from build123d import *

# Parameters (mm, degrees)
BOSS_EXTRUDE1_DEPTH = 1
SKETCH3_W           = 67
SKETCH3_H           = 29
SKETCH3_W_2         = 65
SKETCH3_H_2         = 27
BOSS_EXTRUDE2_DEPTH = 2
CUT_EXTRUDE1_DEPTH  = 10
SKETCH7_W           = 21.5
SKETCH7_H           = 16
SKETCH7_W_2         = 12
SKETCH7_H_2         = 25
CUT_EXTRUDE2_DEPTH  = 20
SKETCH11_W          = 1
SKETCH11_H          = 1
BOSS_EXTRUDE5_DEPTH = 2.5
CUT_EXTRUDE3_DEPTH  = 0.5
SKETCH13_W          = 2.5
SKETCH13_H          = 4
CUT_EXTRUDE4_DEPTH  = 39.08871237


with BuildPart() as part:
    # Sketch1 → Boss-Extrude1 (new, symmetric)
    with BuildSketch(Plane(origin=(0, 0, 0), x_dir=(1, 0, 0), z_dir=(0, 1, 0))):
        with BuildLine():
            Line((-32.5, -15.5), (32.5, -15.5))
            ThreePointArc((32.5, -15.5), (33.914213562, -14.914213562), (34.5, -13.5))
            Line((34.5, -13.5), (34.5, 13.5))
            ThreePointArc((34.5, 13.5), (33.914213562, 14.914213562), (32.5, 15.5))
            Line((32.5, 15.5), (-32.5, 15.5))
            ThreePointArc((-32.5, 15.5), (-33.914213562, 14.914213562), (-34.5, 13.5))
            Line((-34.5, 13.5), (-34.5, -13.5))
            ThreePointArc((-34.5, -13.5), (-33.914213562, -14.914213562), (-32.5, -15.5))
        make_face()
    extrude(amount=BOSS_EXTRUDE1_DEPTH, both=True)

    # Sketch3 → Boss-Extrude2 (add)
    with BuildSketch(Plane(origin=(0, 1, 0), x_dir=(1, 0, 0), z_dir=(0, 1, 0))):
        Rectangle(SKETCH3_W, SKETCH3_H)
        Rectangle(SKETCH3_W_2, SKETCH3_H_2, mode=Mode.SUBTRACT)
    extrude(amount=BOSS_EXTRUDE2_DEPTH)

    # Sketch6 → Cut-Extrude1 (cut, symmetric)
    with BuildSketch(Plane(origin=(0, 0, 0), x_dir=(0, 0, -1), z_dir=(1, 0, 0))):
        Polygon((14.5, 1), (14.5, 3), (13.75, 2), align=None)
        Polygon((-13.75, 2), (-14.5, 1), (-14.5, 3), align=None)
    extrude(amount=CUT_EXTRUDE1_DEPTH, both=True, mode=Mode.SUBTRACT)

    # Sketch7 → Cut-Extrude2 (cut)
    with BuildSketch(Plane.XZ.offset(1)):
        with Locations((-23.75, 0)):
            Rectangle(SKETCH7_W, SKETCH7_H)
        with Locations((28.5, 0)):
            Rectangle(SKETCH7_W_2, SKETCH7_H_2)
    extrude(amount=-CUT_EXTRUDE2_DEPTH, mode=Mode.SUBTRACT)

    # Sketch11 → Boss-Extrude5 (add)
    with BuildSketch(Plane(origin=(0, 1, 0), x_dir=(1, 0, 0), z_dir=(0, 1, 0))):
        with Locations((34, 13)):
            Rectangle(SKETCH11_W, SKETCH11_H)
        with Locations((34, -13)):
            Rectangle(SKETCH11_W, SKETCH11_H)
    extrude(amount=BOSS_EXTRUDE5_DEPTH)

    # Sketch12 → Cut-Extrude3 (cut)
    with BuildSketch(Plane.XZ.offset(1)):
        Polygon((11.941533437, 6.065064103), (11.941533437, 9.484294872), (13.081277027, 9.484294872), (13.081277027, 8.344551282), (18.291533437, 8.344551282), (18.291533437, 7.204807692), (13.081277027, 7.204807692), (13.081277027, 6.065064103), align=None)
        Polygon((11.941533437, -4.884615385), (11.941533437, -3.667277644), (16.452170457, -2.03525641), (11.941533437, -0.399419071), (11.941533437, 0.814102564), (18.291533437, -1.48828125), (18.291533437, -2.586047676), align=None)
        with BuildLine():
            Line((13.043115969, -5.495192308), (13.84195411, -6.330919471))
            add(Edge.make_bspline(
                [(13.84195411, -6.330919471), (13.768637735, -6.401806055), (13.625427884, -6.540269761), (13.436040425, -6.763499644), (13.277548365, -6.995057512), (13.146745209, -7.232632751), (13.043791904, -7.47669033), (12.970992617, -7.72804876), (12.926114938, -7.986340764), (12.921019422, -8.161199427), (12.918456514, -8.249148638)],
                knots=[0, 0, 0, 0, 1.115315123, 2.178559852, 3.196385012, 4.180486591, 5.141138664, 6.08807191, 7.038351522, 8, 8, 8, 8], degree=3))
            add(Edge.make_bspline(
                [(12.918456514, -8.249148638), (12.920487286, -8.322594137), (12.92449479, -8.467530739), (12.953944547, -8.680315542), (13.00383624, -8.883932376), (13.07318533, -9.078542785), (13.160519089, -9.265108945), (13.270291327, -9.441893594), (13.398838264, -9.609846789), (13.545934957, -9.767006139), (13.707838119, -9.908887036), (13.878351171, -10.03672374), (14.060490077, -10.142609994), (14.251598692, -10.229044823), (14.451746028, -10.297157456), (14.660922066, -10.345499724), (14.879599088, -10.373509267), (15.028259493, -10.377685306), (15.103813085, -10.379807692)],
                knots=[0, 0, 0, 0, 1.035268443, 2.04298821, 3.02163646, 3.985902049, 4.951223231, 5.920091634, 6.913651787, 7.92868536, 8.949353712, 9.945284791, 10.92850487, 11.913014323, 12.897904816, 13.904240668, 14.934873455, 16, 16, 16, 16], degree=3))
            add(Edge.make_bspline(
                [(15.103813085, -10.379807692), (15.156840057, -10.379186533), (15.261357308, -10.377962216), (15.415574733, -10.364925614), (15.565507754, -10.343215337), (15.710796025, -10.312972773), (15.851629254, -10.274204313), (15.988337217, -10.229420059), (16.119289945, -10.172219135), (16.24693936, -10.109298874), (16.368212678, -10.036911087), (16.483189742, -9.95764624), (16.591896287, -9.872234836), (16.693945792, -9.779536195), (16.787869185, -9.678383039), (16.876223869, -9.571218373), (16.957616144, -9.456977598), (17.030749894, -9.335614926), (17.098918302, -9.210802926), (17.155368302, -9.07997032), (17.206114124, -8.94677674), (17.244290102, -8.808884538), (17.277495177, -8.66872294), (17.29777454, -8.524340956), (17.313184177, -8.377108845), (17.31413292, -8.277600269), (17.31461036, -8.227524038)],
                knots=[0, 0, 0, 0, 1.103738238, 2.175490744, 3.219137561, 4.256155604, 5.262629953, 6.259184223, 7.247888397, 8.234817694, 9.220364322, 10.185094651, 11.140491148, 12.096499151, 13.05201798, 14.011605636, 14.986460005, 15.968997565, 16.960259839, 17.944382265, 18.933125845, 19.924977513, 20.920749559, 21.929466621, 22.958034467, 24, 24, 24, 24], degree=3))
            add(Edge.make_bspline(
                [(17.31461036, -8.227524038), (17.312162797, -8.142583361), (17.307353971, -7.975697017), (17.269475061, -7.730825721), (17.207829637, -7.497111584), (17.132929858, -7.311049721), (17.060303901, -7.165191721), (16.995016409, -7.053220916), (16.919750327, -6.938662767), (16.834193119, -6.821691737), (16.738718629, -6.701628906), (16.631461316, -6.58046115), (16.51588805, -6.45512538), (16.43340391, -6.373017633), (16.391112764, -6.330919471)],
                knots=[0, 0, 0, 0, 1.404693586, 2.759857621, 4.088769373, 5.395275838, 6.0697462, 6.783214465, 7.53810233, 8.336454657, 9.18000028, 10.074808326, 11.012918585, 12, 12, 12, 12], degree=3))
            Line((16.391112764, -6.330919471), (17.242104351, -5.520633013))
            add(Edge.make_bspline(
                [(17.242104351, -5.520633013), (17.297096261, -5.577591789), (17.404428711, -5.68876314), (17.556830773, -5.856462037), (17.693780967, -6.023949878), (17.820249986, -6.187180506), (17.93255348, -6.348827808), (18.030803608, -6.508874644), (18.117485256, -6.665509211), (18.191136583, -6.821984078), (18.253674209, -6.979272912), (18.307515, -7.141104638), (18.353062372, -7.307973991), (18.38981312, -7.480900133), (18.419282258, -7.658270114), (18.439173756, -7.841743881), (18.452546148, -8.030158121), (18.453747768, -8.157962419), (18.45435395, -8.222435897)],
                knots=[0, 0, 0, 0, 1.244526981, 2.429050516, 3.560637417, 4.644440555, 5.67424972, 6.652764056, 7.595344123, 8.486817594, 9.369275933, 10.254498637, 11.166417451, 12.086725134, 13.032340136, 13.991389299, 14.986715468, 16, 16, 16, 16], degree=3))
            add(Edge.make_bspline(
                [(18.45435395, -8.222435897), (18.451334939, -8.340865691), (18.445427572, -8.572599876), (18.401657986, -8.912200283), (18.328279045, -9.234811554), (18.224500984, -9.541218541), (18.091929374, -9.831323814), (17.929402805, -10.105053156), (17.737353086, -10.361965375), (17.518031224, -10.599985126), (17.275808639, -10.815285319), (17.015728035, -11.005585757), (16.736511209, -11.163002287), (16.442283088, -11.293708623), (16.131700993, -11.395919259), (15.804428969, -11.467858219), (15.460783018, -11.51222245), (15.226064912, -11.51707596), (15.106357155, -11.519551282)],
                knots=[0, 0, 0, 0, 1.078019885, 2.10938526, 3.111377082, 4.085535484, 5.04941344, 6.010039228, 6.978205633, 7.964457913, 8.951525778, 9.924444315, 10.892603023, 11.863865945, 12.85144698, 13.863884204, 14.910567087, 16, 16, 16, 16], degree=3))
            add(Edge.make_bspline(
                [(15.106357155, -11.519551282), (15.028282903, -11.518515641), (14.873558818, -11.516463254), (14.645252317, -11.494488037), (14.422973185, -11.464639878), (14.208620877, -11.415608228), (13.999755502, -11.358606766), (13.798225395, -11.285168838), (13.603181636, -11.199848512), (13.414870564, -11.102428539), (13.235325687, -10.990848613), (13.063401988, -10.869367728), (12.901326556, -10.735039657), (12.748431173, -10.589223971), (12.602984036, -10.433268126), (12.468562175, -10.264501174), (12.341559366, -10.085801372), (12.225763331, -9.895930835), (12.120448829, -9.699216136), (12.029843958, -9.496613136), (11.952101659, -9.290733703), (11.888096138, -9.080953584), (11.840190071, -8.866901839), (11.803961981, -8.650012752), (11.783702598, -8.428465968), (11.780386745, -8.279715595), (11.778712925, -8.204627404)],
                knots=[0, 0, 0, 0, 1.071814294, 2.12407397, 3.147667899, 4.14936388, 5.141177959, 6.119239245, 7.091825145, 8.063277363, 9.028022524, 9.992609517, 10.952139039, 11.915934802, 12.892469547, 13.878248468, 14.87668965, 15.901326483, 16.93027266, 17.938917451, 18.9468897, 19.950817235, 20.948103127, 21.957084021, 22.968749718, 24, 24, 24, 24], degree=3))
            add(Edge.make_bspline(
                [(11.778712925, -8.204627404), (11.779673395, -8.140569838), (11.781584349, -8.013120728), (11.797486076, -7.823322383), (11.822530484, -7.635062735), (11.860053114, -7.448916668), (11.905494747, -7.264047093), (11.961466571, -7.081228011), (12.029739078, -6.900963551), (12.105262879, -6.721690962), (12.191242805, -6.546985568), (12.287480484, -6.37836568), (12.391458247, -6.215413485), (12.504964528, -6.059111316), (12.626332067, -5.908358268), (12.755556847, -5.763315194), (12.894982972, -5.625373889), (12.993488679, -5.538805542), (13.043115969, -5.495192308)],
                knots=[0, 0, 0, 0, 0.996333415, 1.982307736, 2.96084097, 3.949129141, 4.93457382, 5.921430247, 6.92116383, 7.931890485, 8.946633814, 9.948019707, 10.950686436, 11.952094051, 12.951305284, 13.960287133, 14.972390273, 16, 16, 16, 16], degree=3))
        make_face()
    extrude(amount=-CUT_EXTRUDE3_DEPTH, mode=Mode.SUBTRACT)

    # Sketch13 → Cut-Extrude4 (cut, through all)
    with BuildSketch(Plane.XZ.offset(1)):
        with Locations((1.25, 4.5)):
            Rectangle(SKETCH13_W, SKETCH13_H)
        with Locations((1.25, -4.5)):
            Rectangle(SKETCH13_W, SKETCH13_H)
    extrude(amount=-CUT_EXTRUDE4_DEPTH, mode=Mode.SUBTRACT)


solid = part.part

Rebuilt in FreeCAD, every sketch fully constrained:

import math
import FreeCAD as App
import Part
import Sketcher

V = App.Vector


def add_polygon(sketch, points):
    """Adds a closed chain of lines whose ends are joined by coincident constraints."""
    first, n = sketch.GeometryCount, len(points)
    for a, b in zip(points, points[1:] + points[:1]):
        sketch.addGeometry(Part.LineSegment(App.Vector(*a, 0), App.Vector(*b, 0)), False)
    for i in range(n):
        sketch.addConstraint(Sketcher.Constraint("Coincident", first + i, 2, first + (i + 1) % n, 1))

doc = App.newDocument("Part")
body = doc.addObject("PartDesign::Body", "Body")

sketch1 = body.newObject("Sketcher::SketchObject", "Sketch")
sketch1.AttachmentSupport = (doc.getObject("XZ_Plane"), [""])
sketch1.MapMode = "FlatFace"
sketch1.addGeometry([
    Part.LineSegment(V(-32.5, 15.5, 0), V(32.5, 15.5, 0)),
    Part.ArcOfCircle(Part.Circle(V(32.5, 13.5, 0), V(0, 0, 1), 2), math.radians(0), math.radians(90)),
    Part.LineSegment(V(34.5, 13.5, 0), V(34.5, -13.5, 0)),
    Part.ArcOfCircle(Part.Circle(V(32.5, -13.5, 0), V(0, 0, 1), 2), math.radians(-90), math.radians(0)),
    Part.LineSegment(V(32.5, -15.5, 0), V(-32.5, -15.5, 0)),
    Part.ArcOfCircle(Part.Circle(V(-32.5, -13.5, 0), V(0, 0, 1), 2), math.radians(-180), math.radians(-90)),
    Part.LineSegment(V(-34.5, -13.5, 0), V(-34.5, 13.5, 0)),
    Part.ArcOfCircle(Part.Circle(V(-32.5, 13.5, 0), V(0, 0, 1), 2), math.radians(90), math.radians(180)),
], False)
sketch1.addConstraint([
    Sketcher.Constraint("Tangent", 0, 2, 1, 2),
    Sketcher.Constraint("Tangent", 1, 1, 2, 1),
    Sketcher.Constraint("Tangent", 2, 2, 3, 2),
    Sketcher.Constraint("Tangent", 3, 1, 4, 1),
    Sketcher.Constraint("Tangent", 4, 2, 5, 2),
    Sketcher.Constraint("Tangent", 5, 1, 6, 1),
    Sketcher.Constraint("Tangent", 6, 2, 7, 2),
    Sketcher.Constraint("Tangent", 7, 1, 0, 1),
    Sketcher.Constraint("Horizontal", 0),
    Sketcher.Constraint("Vertical", 2),
    Sketcher.Constraint("Horizontal", 4),
    Sketcher.Constraint("Vertical", 6),
    Sketcher.Constraint("Equal", 1, 3),
    Sketcher.Constraint("Equal", 3, 5),
    Sketcher.Constraint("Equal", 5, 7),
    Sketcher.Constraint("Symmetric", 1, 3, 5, 3, -1, 1),
    Sketcher.Constraint("Radius", 1, 2.0),
    Sketcher.Constraint("DistanceX", 0, 1, 0, 2, 65.0),
    Sketcher.Constraint("DistanceY", 2, 2, 2, 1, 27.0),
])
pad1 = body.newObject("PartDesign::Pad", "Pad")
pad1.Profile = sketch1
pad1.Length = 2
pad1.Midplane = True

sketch2 = body.newObject("Sketcher::SketchObject", "Sketch001")
sketch2.AttachmentSupport = (doc.getObject("XZ_Plane"), [""])
sketch2.MapMode = "FlatFace"
sketch2.AttachmentOffset = App.Placement(V(0, 0, -1), App.Rotation())
add_polygon(sketch2, [(-34, -14), (-34, 14), (34, 14), (34, -14)])
add_polygon(sketch2, [(32, 14), (-32, 14), (-32, -14), (32, -14)])
sketch2.addConstraint([
    Sketcher.Constraint("Vertical", 0),
    Sketcher.Constraint("Horizontal", 1),
    Sketcher.Constraint("Vertical", 2),
    Sketcher.Constraint("Horizontal", 3),
    Sketcher.Constraint("Horizontal", 4),
    Sketcher.Constraint("Vertical", 5),
    Sketcher.Constraint("Horizontal", 6),
    Sketcher.Constraint("Vertical", 7),
    Sketcher.Constraint("Symmetric", 0, 2, 2, 2, -1, 1),
    Sketcher.Constraint("Symmetric", 4, 2, 6, 2, -1, 1),
    Sketcher.Constraint("DistanceX", 1, 1, 1, 2, 67.0),
    Sketcher.Constraint("DistanceX", 4, 2, 4, 1, 65.0),
    Sketcher.Constraint("DistanceY", 0, 1, 0, 2, 29.0),
    Sketcher.Constraint("DistanceY", 5, 2, 5, 1, 27.0),
])
pad2 = body.newObject("PartDesign::Pad", "Pad001")
pad2.Profile = sketch2
pad2.Length = 2
pad2.Reversed = True

sketch3 = body.newObject("Sketcher::SketchObject", "Sketch002")
sketch3.AttachmentSupport = (doc.getObject("YZ_Plane"), [""])
sketch3.MapMode = "FlatFace"
add_polygon(sketch3, [(1, -14.5), (3, -14.5), (2, -13.8)])
add_polygon(sketch3, [(1, 14.5), (2, 13.8), (3, 14.5)])
sketch3.addConstraint([
    Sketcher.Constraint("Horizontal", 0),
    Sketcher.Constraint("Horizontal", 5),
    Sketcher.Constraint("Symmetric", 1, 2, 3, 2, -1),
    Sketcher.Constraint("Symmetric", 0, 2, 4, 2, -1),
    Sketcher.Constraint("Parallel", 1, 3),
    Sketcher.Constraint("Parallel", 2, 4),
    Sketcher.Constraint("DistanceX", 0, 1, 0, 2, 2.0),
    Sketcher.Constraint("DistanceX", -1, 1, 0, 2, 3.0),
    Sketcher.Constraint("DistanceY", 0, 2, 4, 2, 29.0),
    Sketcher.Constraint("DistanceY", 1, 2, 3, 2, 27.5),
])
pocket1 = body.newObject("PartDesign::Pocket", "Pocket")
pocket1.Profile = sketch3
pocket1.Length = 20
pocket1.Midplane = True

sketch4 = body.newObject("Sketcher::SketchObject", "Sketch003")
sketch4.AttachmentSupport = (doc.getObject("XZ_Plane"), [""])
sketch4.MapMode = "FlatFace"
sketch4.AttachmentOffset = App.Placement(V(0, 0, 1), App.Rotation())
add_polygon(sketch4, [(-34, 8), (-34, -8), (-13, -8), (-13, 8)])
add_polygon(sketch4, [(22, 12), (22, -12), (34, -12), (34, 12)])
sketch4.addConstraint([
    Sketcher.Constraint("Vertical", 0),
    Sketcher.Constraint("Horizontal", 1),
    Sketcher.Constraint("Vertical", 2),
    Sketcher.Constraint("Horizontal", 3),
    Sketcher.Constraint("Vertical", 4),
    Sketcher.Constraint("Horizontal", 5),
    Sketcher.Constraint("Vertical", 6),
    Sketcher.Constraint("Horizontal", 7),
    Sketcher.Constraint("DistanceX", 5, 1, 5, 2, 12.0),
    Sketcher.Constraint("DistanceY", 0, 2, 0, 1, 16.0),
    Sketcher.Constraint("DistanceY", 4, 2, 4, 1, 25.0),
    Sketcher.Constraint("DistanceX", 1, 1, 1, 2, 21.5),
    Sketcher.Constraint("DistanceY", 0, 2, -1, 1, 8.0),
    Sketcher.Constraint("DistanceX", 1, 2, -1, 1, 13.0),
    Sketcher.Constraint("DistanceX", 0, 2, 4, 2, 57.0),
    Sketcher.Constraint("DistanceY", 4, 2, -1, 1, 12.5),
])
pocket2 = body.newObject("PartDesign::Pocket", "Pocket001")
pocket2.Profile = sketch4
pocket2.Length = 20

sketch5 = body.newObject("Sketcher::SketchObject", "Sketch004")
sketch5.AttachmentSupport = (doc.getObject("XZ_Plane"), [""])
sketch5.MapMode = "FlatFace"
sketch5.AttachmentOffset = App.Placement(V(0, 0, -1), App.Rotation())
add_polygon(sketch5, [(33.5, -13.5), (33.5, -12.5), (34.5, -12.5), (34.5, -13.5)])
add_polygon(sketch5, [(33.5, 12.5), (33.5, 13.5), (34.5, 13.5), (34.5, 12.5)])
sketch5.addConstraint([
    Sketcher.Constraint("Vertical", 0),
    Sketcher.Constraint("Horizontal", 1),
    Sketcher.Constraint("Vertical", 2),
    Sketcher.Constraint("Horizontal", 3),
    Sketcher.Constraint("Vertical", 4),
    Sketcher.Constraint("Horizontal", 5),
    Sketcher.Constraint("Vertical", 6),
    Sketcher.Constraint("Horizontal", 7),
    Sketcher.Constraint("Symmetric", 3, 2, 4, 2, -1),
    Sketcher.Constraint("Symmetric", 1, 2, 6, 2, -1),
    Sketcher.Constraint("Equal", 7, 0),
    Sketcher.Constraint("DistanceX", 1, 1, 1, 2, 1.0),
    Sketcher.Constraint("DistanceY", 0, 2, 4, 2, 26.0),
    Sketcher.Constraint("DistanceX", -1, 1, 0, 2, 33.5),
])
pad3 = body.newObject("PartDesign::Pad", "Pad002")
pad3.Profile = sketch5
pad3.Length = 2.5
pad3.Reversed = True

sketch6 = body.newObject("Sketcher::SketchObject", "Sketch005")
sketch6.AttachmentSupport = (doc.getObject("XZ_Plane"), [""])
sketch6.MapMode = "FlatFace"
sketch6.AttachmentOffset = App.Placement(V(0, 0, 1), App.Rotation())
add_polygon(sketch6, [(11.941533, 9.484295), (11.941533, 6.065064), (13.081277, 6.065064), (13.081277, 7.204808), (18.291533, 7.204808), (18.291533, 8.344551), (13.081277, 8.344551), (13.081277, 9.484295)])
add_polygon(sketch6, [(11.941533, -3.667278), (11.941533, -4.884615), (18.291533, -2.586048), (18.291533, -1.488281), (11.941533, 0.814103), (11.941533, -0.399419), (16.45217, -2.035256)])
sketch6.addGeometry(Part.LineSegment(V(13.841954, -6.330919, 0), V(13.043116, -5.495192, 0)), False)
sketch6.addGeometry(Part.BSplineCurve([V(11.778713, -8.204627, 0), V(11.779673, -8.14057, 0), V(11.781584, -8.013121, 0), V(11.797486, -7.823322, 0), V(11.82253, -7.635063, 0), V(11.860053, -7.448917, 0), V(11.905495, -7.264047, 0), V(11.961467, -7.081228, 0), V(12.029739, -6.900964, 0), V(12.105263, -6.721691, 0), V(12.191243, -6.546986, 0), V(12.28748, -6.378366, 0), V(12.391458, -6.215413, 0), V(12.504965, -6.059111, 0), V(12.626332, -5.908358, 0), V(12.755557, -5.763315, 0), V(12.894983, -5.625374, 0), V(12.993489, -5.538806, 0), V(13.043116, -5.495192, 0)], [4, 1, 1, 1, 1, 1, 1, 1, 1, 1, 1, 1, 1, 1, 1, 1, 4], [0, 0.996333415, 1.982307736, 2.96084097, 3.949129141, 4.93457382, 5.921430247, 6.92116383, 7.931890485, 8.946633814, 9.948019707, 10.950686436, 11.952094051, 12.951305284, 13.960287133, 14.972390273, 16], False, 3, [1, 1, 1, 1, 1, 1, 1, 1, 1, 1, 1, 1, 1, 1, 1, 1, 1, 1, 1], False), False)
sketch6.addGeometry(Part.BSplineCurve([V(15.106357, -11.519551, 0), V(15.028283, -11.518516, 0), V(14.873559, -11.516463, 0), V(14.645252, -11.494488, 0), V(14.422973, -11.46464, 0), V(14.208621, -11.415608, 0), V(13.999756, -11.358607, 0), V(13.798225, -11.285169, 0), V(13.603182, -11.199849, 0), V(13.414871, -11.102429, 0), V(13.235326, -10.990849, 0), V(13.063402, -10.869368, 0), V(12.901327, -10.73504, 0), V(12.748431, -10.589224, 0), V(12.602984, -10.433268, 0), V(12.468562, -10.264501, 0), V(12.341559, -10.085801, 0), V(12.225763, -9.895931, 0), V(12.120449, -9.699216, 0), V(12.029844, -9.496613, 0), V(11.952102, -9.290734, 0), V(11.888096, -9.080954, 0), V(11.84019, -8.866902, 0), V(11.803962, -8.650013, 0), V(11.783703, -8.428466, 0), V(11.780387, -8.279716, 0), V(11.778713, -8.204627, 0)], [4, 1, 1, 1, 1, 1, 1, 1, 1, 1, 1, 1, 1, 1, 1, 1, 1, 1, 1, 1, 1, 1, 1, 1, 4], [0, 1.071814294, 2.12407397, 3.147667899, 4.14936388, 5.141177959, 6.119239245, 7.091825145, 8.063277363, 9.028022524, 9.992609517, 10.952139039, 11.915934802, 12.892469547, 13.878248468, 14.87668965, 15.901326483, 16.93027266, 17.938917451, 18.9468897, 19.950817235, 20.948103127, 21.957084021, 22.968749718, 24], False, 3, [1, 1, 1, 1, 1, 1, 1, 1, 1, 1, 1, 1, 1, 1, 1, 1, 1, 1, 1, 1, 1, 1, 1, 1, 1, 1, 1], False), False)
sketch6.addGeometry(Part.BSplineCurve([V(18.454354, -8.222436, 0), V(18.451335, -8.340866, 0), V(18.445428, -8.5726, 0), V(18.401658, -8.9122, 0), V(18.328279, -9.234812, 0), V(18.224501, -9.541219, 0), V(18.091929, -9.831324, 0), V(17.929403, -10.105053, 0), V(17.737353, -10.361965, 0), V(17.518031, -10.599985, 0), V(17.275809, -10.815285, 0), V(17.015728, -11.005586, 0), V(16.736511, -11.163002, 0), V(16.442283, -11.293709, 0), V(16.131701, -11.395919, 0), V(15.804429, -11.467858, 0), V(15.460783, -11.512222, 0), V(15.226065, -11.517076, 0), V(15.106357, -11.519551, 0)], [4, 1, 1, 1, 1, 1, 1, 1, 1, 1, 1, 1, 1, 1, 1, 1, 4], [0, 1.078019885, 2.10938526, 3.111377082, 4.085535484, 5.04941344, 6.010039228, 6.978205633, 7.964457913, 8.951525778, 9.924444315, 10.892603023, 11.863865945, 12.85144698, 13.863884204, 14.910567087, 16], False, 3, [1, 1, 1, 1, 1, 1, 1, 1, 1, 1, 1, 1, 1, 1, 1, 1, 1, 1, 1], False), False)
sketch6.addGeometry(Part.BSplineCurve([V(17.242104, -5.520633, 0), V(17.297096, -5.577592, 0), V(17.404429, -5.688763, 0), V(17.556831, -5.856462, 0), V(17.693781, -6.02395, 0), V(17.82025, -6.187181, 0), V(17.932553, -6.348828, 0), V(18.030804, -6.508875, 0), V(18.117485, -6.665509, 0), V(18.191137, -6.821984, 0), V(18.253674, -6.979273, 0), V(18.307515, -7.141105, 0), V(18.353062, -7.307974, 0), V(18.389813, -7.4809, 0), V(18.419282, -7.65827, 0), V(18.439174, -7.841744, 0), V(18.452546, -8.030158, 0), V(18.453748, -8.157962, 0), V(18.454354, -8.222436, 0)], [4, 1, 1, 1, 1, 1, 1, 1, 1, 1, 1, 1, 1, 1, 1, 1, 4], [0, 1.244526981, 2.429050516, 3.560637417, 4.644440555, 5.67424972, 6.652764056, 7.595344123, 8.486817594, 9.369275933, 10.254498637, 11.166417451, 12.086725134, 13.032340136, 13.991389299, 14.986715468, 16], False, 3, [1, 1, 1, 1, 1, 1, 1, 1, 1, 1, 1, 1, 1, 1, 1, 1, 1, 1, 1], False), False)
sketch6.addGeometry(Part.LineSegment(V(17.242104, -5.520633, 0), V(16.391113, -6.330919, 0)), False)
sketch6.addGeometry(Part.BSplineCurve([V(17.31461, -8.227524, 0), V(17.312163, -8.142583, 0), V(17.307354, -7.975697, 0), V(17.269475, -7.730826, 0), V(17.20783, -7.497112, 0), V(17.13293, -7.31105, 0), V(17.060304, -7.165192, 0), V(16.995016, -7.053221, 0), V(16.91975, -6.938663, 0), V(16.834193, -6.821692, 0), V(16.738719, -6.701629, 0), V(16.631461, -6.580461, 0), V(16.515888, -6.455125, 0), V(16.433404, -6.373018, 0), V(16.391113, -6.330919, 0)], [4, 1, 1, 1, 1, 1, 1, 1, 1, 1, 1, 1, 4], [0, 1.404693586, 2.759857621, 4.088769373, 5.395275838, 6.0697462, 6.783214465, 7.53810233, 8.336454657, 9.18000028, 10.074808326, 11.012918585, 12], False, 3, [1, 1, 1, 1, 1, 1, 1, 1, 1, 1, 1, 1, 1, 1, 1], False), False)
sketch6.addGeometry(Part.BSplineCurve([V(15.103813, -10.379808, 0), V(15.15684, -10.379187, 0), V(15.261357, -10.377962, 0), V(15.415575, -10.364926, 0), V(15.565508, -10.343215, 0), V(15.710796, -10.312973, 0), V(15.851629, -10.274204, 0), V(15.988337, -10.22942, 0), V(16.11929, -10.172219, 0), V(16.246939, -10.109299, 0), V(16.368213, -10.036911, 0), V(16.48319, -9.957646, 0), V(16.591896, -9.872235, 0), V(16.693946, -9.779536, 0), V(16.787869, -9.678383, 0), V(16.876224, -9.571218, 0), V(16.957616, -9.456978, 0), V(17.03075, -9.335615, 0), V(17.098918, -9.210803, 0), V(17.155368, -9.07997, 0), V(17.206114, -8.946777, 0), V(17.24429, -8.808885, 0), V(17.277495, -8.668723, 0), V(17.297775, -8.524341, 0), V(17.313184, -8.377109, 0), V(17.314133, -8.2776, 0), V(17.31461, -8.227524, 0)], [4, 1, 1, 1, 1, 1, 1, 1, 1, 1, 1, 1, 1, 1, 1, 1, 1, 1, 1, 1, 1, 1, 1, 1, 4], [0, 1.103738238, 2.175490744, 3.219137561, 4.256155604, 5.262629953, 6.259184223, 7.247888397, 8.234817694, 9.220364322, 10.185094651, 11.140491148, 12.096499151, 13.05201798, 14.011605636, 14.986460005, 15.968997565, 16.960259839, 17.944382265, 18.933125845, 19.924977513, 20.920749559, 21.929466621, 22.958034467, 24], False, 3, [1, 1, 1, 1, 1, 1, 1, 1, 1, 1, 1, 1, 1, 1, 1, 1, 1, 1, 1, 1, 1, 1, 1, 1, 1, 1, 1], False), False)
sketch6.addGeometry(Part.BSplineCurve([V(12.918457, -8.249149, 0), V(12.920487, -8.322594, 0), V(12.924495, -8.467531, 0), V(12.953945, -8.680316, 0), V(13.003836, -8.883932, 0), V(13.073185, -9.078543, 0), V(13.160519, -9.265109, 0), V(13.270291, -9.441894, 0), V(13.398838, -9.609847, 0), V(13.545935, -9.767006, 0), V(13.707838, -9.908887, 0), V(13.878351, -10.036724, 0), V(14.06049, -10.14261, 0), V(14.251599, -10.229045, 0), V(14.451746, -10.297157, 0), V(14.660922, -10.3455, 0), V(14.879599, -10.373509, 0), V(15.028259, -10.377685, 0), V(15.103813, -10.379808, 0)], [4, 1, 1, 1, 1, 1, 1, 1, 1, 1, 1, 1, 1, 1, 1, 1, 4], [0, 1.035268443, 2.04298821, 3.02163646, 3.985902049, 4.951223231, 5.920091634, 6.913651787, 7.92868536, 8.949353712, 9.945284791, 10.92850487, 11.913014323, 12.897904816, 13.904240668, 14.934873455, 16], False, 3, [1, 1, 1, 1, 1, 1, 1, 1, 1, 1, 1, 1, 1, 1, 1, 1, 1, 1, 1], False), False)
sketch6.addGeometry(Part.BSplineCurve([V(13.841954, -6.330919, 0), V(13.768638, -6.401806, 0), V(13.625428, -6.54027, 0), V(13.43604, -6.7635, 0), V(13.277548, -6.995058, 0), V(13.146745, -7.232633, 0), V(13.043792, -7.47669, 0), V(12.970993, -7.728049, 0), V(12.926115, -7.986341, 0), V(12.921019, -8.161199, 0), V(12.918457, -8.249149, 0)], [4, 1, 1, 1, 1, 1, 1, 1, 4], [0, 1.115315123, 2.178559852, 3.196385012, 4.180486591, 5.141138664, 6.08807191, 7.038351522, 8], False, 3, [1, 1, 1, 1, 1, 1, 1, 1, 1, 1, 1], False), False)
sketch6.addConstraint([
    Sketcher.Constraint("Block", 16),
    Sketcher.Constraint("Block", 17),
    Sketcher.Constraint("Block", 18),
    Sketcher.Constraint("Block", 19),
    Sketcher.Constraint("Block", 21),
    Sketcher.Constraint("Block", 22),
    Sketcher.Constraint("Block", 23),
    Sketcher.Constraint("Block", 24),
    Sketcher.Constraint("Coincident", 15, 2, 16, 2),
    Sketcher.Constraint("Coincident", 19, 1, 20, 1),
    Sketcher.Constraint("Coincident", 20, 2, 21, 2),
    Sketcher.Constraint("Coincident", 24, 1, 15, 1),
    Sketcher.Constraint("Vertical", 0),
    Sketcher.Constraint("Horizontal", 1),
    Sketcher.Constraint("Vertical", 2),
    Sketcher.Constraint("Horizontal", 3),
    Sketcher.Constraint("Vertical", 4),
    Sketcher.Constraint("Horizontal", 5),
    Sketcher.Constraint("Vertical", 6),
    Sketcher.Constraint("Horizontal", 7),
    Sketcher.Constraint("Vertical", 8),
    Sketcher.Constraint("Vertical", 10),
    Sketcher.Constraint("Vertical", 12),
    Sketcher.Constraint("Vertical", 2, 2, 5, 2),
    Sketcher.Constraint("Vertical", 7, 2, 8, 2),
    Sketcher.Constraint("Vertical", 4, 2, 9, 2),
    Sketcher.Constraint("Vertical", 8, 2, 11, 2),
    Sketcher.Constraint("Equal", 7, 2),
    Sketcher.Constraint("Equal", 2, 4),
    Sketcher.Constraint("Equal", 4, 6),
    Sketcher.Constraint("DistanceX", 0, 2, 3, 2, 6.35),
    Sketcher.Constraint("DistanceY", 0, 2, 0, 1, 3.419231),
    Sketcher.Constraint("DistanceY", 12, 2, 12, 1, 1.213522),
    Sketcher.Constraint("DistanceY", 9, 2, 4, 2, 10.930599),
    Sketcher.Constraint("DistanceY", 8, 2, 8, 1, 1.217338),
    Sketcher.Constraint("DistanceY", 10, 1, 10, 2, 1.097766),
    Sketcher.Constraint("DistanceY", -1, 1, 4, 2, 8.344551),
    Sketcher.Constraint("DistanceY", 12, 2, -1, 1, 0.399419),
    Sketcher.Constraint("DistanceX", -1, 1, 13, 2, 16.45217),
    Sketcher.Constraint("DistanceY", 8, 2, 0, 2, 10.949679),
    Sketcher.Constraint("DistanceY", 9, 2, 13, 2, 0.550791),
    Sketcher.Constraint("DistanceX", 20, 2, 9, 2, 1.900421),
])
pocket3 = body.newObject("PartDesign::Pocket", "Pocket002")
pocket3.Profile = sketch6
pocket3.Length = 0.5

sketch7 = body.newObject("Sketcher::SketchObject", "Sketch006")
sketch7.AttachmentSupport = (doc.getObject("XZ_Plane"), [""])
sketch7.MapMode = "FlatFace"
sketch7.AttachmentOffset = App.Placement(V(0, 0, 1), App.Rotation())
add_polygon(sketch7, [(0, 6.5), (0, 2.5), (2.5, 2.5), (2.5, 6.5)])
add_polygon(sketch7, [(0, -2.5), (0, -6.5), (2.5, -6.5), (2.5, -2.5)])
sketch7.addConstraint([
    Sketcher.Constraint("Vertical", 0),
    Sketcher.Constraint("Horizontal", 1),
    Sketcher.Constraint("Vertical", 2),
    Sketcher.Constraint("Horizontal", 3),
    Sketcher.Constraint("Vertical", 4),
    Sketcher.Constraint("Horizontal", 5),
    Sketcher.Constraint("Vertical", 6),
    Sketcher.Constraint("Horizontal", 7),
    Sketcher.Constraint("Symmetric", 3, 2, 4, 2, -1, 1),
    Sketcher.Constraint("Symmetric", 1, 2, 6, 2, -1),
    Sketcher.Constraint("PointOnObject", 0, 2, -2),
    Sketcher.Constraint("DistanceY", 0, 2, 0, 1, 4.0),
    Sketcher.Constraint("DistanceX", 1, 1, 1, 2, 2.5),
    Sketcher.Constraint("DistanceY", 4, 2, 0, 2, 9.0),
])
pocket4 = body.newObject("PartDesign::Pocket", "Pocket003")
pocket4.Profile = sketch7
pocket4.Type = "ThroughAll"

doc.recompute()
